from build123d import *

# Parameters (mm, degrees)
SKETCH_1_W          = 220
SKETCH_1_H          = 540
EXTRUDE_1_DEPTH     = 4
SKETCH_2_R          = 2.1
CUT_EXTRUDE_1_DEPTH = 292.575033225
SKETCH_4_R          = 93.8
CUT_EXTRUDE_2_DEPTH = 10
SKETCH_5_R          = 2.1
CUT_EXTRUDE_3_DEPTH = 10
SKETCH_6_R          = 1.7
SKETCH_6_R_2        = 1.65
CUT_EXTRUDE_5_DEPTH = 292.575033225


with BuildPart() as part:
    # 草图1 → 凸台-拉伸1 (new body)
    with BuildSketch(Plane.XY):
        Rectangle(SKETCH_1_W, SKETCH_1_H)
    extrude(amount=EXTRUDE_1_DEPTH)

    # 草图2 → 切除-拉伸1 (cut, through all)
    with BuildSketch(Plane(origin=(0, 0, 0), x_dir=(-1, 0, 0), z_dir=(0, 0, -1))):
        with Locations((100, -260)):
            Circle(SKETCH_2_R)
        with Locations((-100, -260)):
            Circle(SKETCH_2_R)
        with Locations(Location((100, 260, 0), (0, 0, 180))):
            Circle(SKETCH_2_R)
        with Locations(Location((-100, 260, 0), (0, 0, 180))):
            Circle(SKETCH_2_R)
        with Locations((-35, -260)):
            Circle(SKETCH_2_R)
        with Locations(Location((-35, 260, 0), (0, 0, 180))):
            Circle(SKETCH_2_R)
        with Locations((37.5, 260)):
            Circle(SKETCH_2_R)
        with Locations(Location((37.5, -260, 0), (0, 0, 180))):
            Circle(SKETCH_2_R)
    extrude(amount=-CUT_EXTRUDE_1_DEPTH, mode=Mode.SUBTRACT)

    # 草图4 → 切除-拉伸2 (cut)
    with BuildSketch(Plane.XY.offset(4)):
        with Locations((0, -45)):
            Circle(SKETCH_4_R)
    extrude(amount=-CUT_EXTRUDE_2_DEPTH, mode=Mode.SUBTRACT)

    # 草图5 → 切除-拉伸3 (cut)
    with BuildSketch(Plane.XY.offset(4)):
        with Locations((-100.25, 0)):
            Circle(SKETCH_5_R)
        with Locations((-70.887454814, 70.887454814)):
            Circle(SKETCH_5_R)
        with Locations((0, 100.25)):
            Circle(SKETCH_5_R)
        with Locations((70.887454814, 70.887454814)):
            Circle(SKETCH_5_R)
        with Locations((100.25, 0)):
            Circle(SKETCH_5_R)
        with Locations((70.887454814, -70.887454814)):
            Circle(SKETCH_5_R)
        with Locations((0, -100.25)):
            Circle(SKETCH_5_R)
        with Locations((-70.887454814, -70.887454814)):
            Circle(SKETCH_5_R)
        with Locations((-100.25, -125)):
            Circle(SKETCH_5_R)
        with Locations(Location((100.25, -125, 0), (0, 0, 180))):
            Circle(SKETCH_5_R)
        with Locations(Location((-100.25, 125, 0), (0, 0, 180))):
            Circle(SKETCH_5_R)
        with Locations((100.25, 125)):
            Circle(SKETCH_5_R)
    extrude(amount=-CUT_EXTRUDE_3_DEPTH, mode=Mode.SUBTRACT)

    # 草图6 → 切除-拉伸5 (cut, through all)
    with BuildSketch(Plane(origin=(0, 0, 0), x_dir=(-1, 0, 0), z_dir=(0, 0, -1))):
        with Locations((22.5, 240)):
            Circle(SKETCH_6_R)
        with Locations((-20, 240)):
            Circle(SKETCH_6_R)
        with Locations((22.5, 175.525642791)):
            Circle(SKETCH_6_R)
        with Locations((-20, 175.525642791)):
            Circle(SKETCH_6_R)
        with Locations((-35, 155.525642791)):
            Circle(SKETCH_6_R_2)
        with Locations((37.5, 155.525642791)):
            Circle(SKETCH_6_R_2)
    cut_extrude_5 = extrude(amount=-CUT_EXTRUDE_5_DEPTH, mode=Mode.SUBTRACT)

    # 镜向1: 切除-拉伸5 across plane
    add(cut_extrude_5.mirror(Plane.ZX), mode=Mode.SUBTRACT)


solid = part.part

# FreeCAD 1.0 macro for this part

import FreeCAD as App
import Part
import Sketcher
Q = App.Units.Quantity


def add_polygon(sketch, points):
    """Adds a closed chain of lines whose ends are joined by coincident constraints."""
    first, n = sketch.GeometryCount, len(points)
    for a, b in zip(points, points[1:] + points[:1]):
        sketch.addGeometry(Part.LineSegment(App.Vector(*a, 0), App.Vector(*b, 0)), False)
    for i in range(n):
        sketch.addConstraint(Sketcher.Constraint("Coincident", first + i, 2, first + (i + 1) % n, 1))

doc = App.newDocument("Part")
body = doc.addObject("PartDesign::Body", "Body")

sketch1 = body.newObject("Sketcher::SketchObject", "Sketch")
sketch1.AttachmentSupport = (doc.getObject("XY_Plane"), [""])
sketch1.MapMode = "FlatFace"
add_polygon(sketch1, [(-110, 270), (-110, -270), (110, -270), (110, 270)])
sketch1.addConstraint(Sketcher.Constraint("Vertical", 0))
sketch1.addConstraint(Sketcher.Constraint("Horizontal", 1))
sketch1.addConstraint(Sketcher.Constraint("Vertical", 2))
sketch1.addConstraint(Sketcher.Constraint("Horizontal", 3))
sketch1.addConstraint(Sketcher.Constraint("Symmetric", 0, 2, 2, 2, -1, 1))
sketch1.addConstraint(Sketcher.Constraint("DistanceX", 1, 1, 1, 2, Q("220 mm")))
sketch1.addConstraint(Sketcher.Constraint("DistanceY", 0, 2, 0, 1, Q("540 mm")))
pad1 = body.newObject("PartDesign::Pad", "Pad")
pad1.Profile = sketch1
pad1.Length = 4

sketch2 = body.newObject("Sketcher::SketchObject", "Sketch001")
sketch2.AttachmentSupport = (doc.getObject("XY_Plane"), [""])
sketch2.MapMode = "FlatFace"
sketch2.addGeometry(Part.Circle(App.Vector(-100, -260, 0), App.Vector(0, 0, 1), 2.1), False)
sketch2.addGeometry(Part.Circle(App.Vector(100, -260, 0), App.Vector(0, 0, 1), 2.1), False)
sketch2.addGeometry(Part.Circle(App.Vector(-100, 260, 0), App.Vector(0, 0, 1), 2.1), False)
sketch2.addGeometry(Part.Circle(App.Vector(100, 260, 0), App.Vector(0, 0, 1), 2.1), False)
sketch2.addGeometry(Part.Circle(App.Vector(35, -260, 0), App.Vector(0, 0, 1), 2.1), False)
sketch2.addGeometry(Part.Circle(App.Vector(35, 260, 0), App.Vector(0, 0, 1), 2.1), False)
sketch2.addGeometry(Part.Circle(App.Vector(-37.5, 260, 0), App.Vector(0, 0, 1), 2.1), False)
sketch2.addGeometry(Part.Circle(App.Vector(-37.5, -260, 0), App.Vector(0, 0, 1), 2.1), False)
sketch2.addConstraint(Sketcher.Constraint("Equal", 0, 1))
sketch2.addConstraint(Sketcher.Constraint("Equal", 1, 2))
sketch2.addConstraint(Sketcher.Constraint("Equal", 2, 3))
sketch2.addConstraint(Sketcher.Constraint("Equal", 3, 4))
sketch2.addConstraint(Sketcher.Constraint("Equal", 4, 5))
sketch2.addConstraint(Sketcher.Constraint("Equal", 5, 6))
sketch2.addConstraint(Sketcher.Constraint("Equal", 6, 7))
sketch2.addConstraint(Sketcher.Constraint("Symmetric", 1, 3, 2, 3, -1, 1))
sketch2.addConstraint(Sketcher.Constraint("Symmetric", 0, 3, 3, 3, -1, 1))
sketch2.addConstraint(Sketcher.Constraint("Symmetric", 0, 3, 1, 3, -2))
sketch2.addConstraint(Sketcher.Constraint("Symmetric", 4, 3, 5, 3, -1))
sketch2.addConstraint(Sketcher.Constraint("Symmetric", 6, 3, 7, 3, -1))
sketch2.addConstraint(Sketcher.Constraint("Horizontal", 1, 3, 4, 3))
sketch2.addConstraint(Sketcher.Constraint("Horizontal", 5, 3, 6, 3))
sketch2.addConstraint(Sketcher.Constraint("Diameter", 0, Q("4.2 mm")))
sketch2.addConstraint(Sketcher.Constraint("DistanceX", 0, 3, -1, 1, Q("100 mm")))
sketch2.addConstraint(Sketcher.Constraint("DistanceY", 0, 3, -1, 1, Q("260 mm")))
sketch2.addConstraint(Sketcher.Constraint("DistanceX", -1, 1, 4, 3, Q("35 mm")))
sketch2.addConstraint(Sketcher.Constraint("DistanceX", 6, 3, -1, 1, Q("37.5 mm")))
pocket1 = body.newObject("PartDesign::Pocket", "Pocket")
pocket1.Profile = sketch2
pocket1.Type = "ThroughAll"
pocket1.Reversed = True

sketch3 = body.newObject("Sketcher::SketchObject", "Sketch002")
sketch3.AttachmentSupport = (doc.getObject("XY_Plane"), [""])
sketch3.MapMode = "FlatFace"
sketch3.AttachmentOffset = App.Placement(App.Vector(0, 0, 4), App.Rotation())
sketch3.addGeometry(Part.Circle(App.Vector(0, -45, 0), App.Vector(0, 0, 1), 94), False)
sketch3.addConstraint(Sketcher.Constraint("PointOnObject", 0, 3, -2))
sketch3.addConstraint(Sketcher.Constraint("Diameter", 0, Q("187.6 mm")))
sketch3.addConstraint(Sketcher.Constraint("DistanceY", 0, 3, -1, 1, Q("45 mm")))
pocket2 = body.newObject("PartDesign::Pocket", "Pocket001")
pocket2.Profile = sketch3
pocket2.Length = 10

sketch4 = body.newObject("Sketcher::SketchObject", "Sketch003")
sketch4.AttachmentSupport = (doc.getObject("XY_Plane"), [""])
sketch4.MapMode = "FlatFace"
sketch4.AttachmentOffset = App.Placement(App.Vector(0, 0, 4), App.Rotation())
sketch4.addGeometry(Part.Circle(App.Vector(-100.2, 0, 0), App.Vector(0, 0, 1), 2.1), False)
sketch4.addGeometry(Part.Circle(App.Vector(-70.9, 70.9, 0), App.Vector(0, 0, 1), 2.1), False)
sketch4.addGeometry(Part.Circle(App.Vector(0, 100.2, 0), App.Vector(0, 0, 1), 2.1), False)
sketch4.addGeometry(Part.Circle(App.Vector(70.9, 70.9, 0), App.Vector(0, 0, 1), 2.1), False)
sketch4.addGeometry(Part.Circle(App.Vector(100.2, 0, 0), App.Vector(0, 0, 1), 2.1), False)
sketch4.addGeometry(Part.Circle(App.Vector(70.9, -70.9, 0), App.Vector(0, 0, 1), 2.1), False)
sketch4.addGeometry(Part.Circle(App.Vector(0, -100.2, 0), App.Vector(0, 0, 1), 2.1), False)
sketch4.addGeometry(Part.Circle(App.Vector(-70.9, -70.9, 0), App.Vector(0, 0, 1), 2.1), False)
sketch4.addGeometry(Part.Circle(App.Vector(-100.2, -125, 0), App.Vector(0, 0, 1), 2.1), False)
sketch4.addGeometry(Part.Circle(App.Vector(100.2, -125, 0), App.Vector(0, 0, 1), 2.1), False)
sketch4.addGeometry(Part.Circle(App.Vector(-100.2, 125, 0), App.Vector(0, 0, 1), 2.1), False)
sketch4.addGeometry(Part.Circle(App.Vector(100.2, 125, 0), App.Vector(0, 0, 1), 2.1), False)
sketch4.addConstraint(Sketcher.Constraint("Equal", 0, 1))
sketch4.addConstraint(Sketcher.Constraint("Equal", 1, 2))
sketch4.addConstraint(Sketcher.Constraint("Equal", 2, 3))
sketch4.addConstraint(Sketcher.Constraint("Equal", 3, 4))
sketch4.addConstraint(Sketcher.Constraint("Equal", 4, 5))
sketch4.addConstraint(Sketcher.Constraint("Equal", 5, 6))
sketch4.addConstraint(Sketcher.Constraint("Equal", 6, 7))
sketch4.addConstraint(Sketcher.Constraint("Equal", 7, 8))
sketch4.addConstraint(Sketcher.Constraint("Equal", 8, 9))
sketch4.addConstraint(Sketcher.Constraint("Equal", 9, 10))
sketch4.addConstraint(Sketcher.Constraint("Equal", 10, 11))
sketch4.addConstraint(Sketcher.Constraint("Symmetric", 0, 3, 4, 3, -1, 1))
sketch4.addConstraint(Sketcher.Constraint("Symmetric", 1, 3, 5, 3, -1, 1))
sketch4.addConstraint(Sketcher.Constraint("Symmetric", 2, 3, 6, 3, -1, 1))
sketch4.addConstraint(Sketcher.Constraint("Symmetric", 3, 3, 7, 3, -1, 1))
sketch4.addConstraint(Sketcher.Constraint("Symmetric", 9, 3, 10, 3, -1, 1))
sketch4.addConstraint(Sketcher.Constraint("Symmetric", 8, 3, 11, 3, -1, 1))
sketch4.addConstraint(Sketcher.Constraint("Symmetric", 1, 3, 3, 3, -2))
sketch4.addConstraint(Sketcher.Constraint("Symmetric", 8, 3, 9, 3, -2))
sketch4.addConstraint(Sketcher.Constraint("PointOnObject", 0, 3, -1))
sketch4.addConstraint(Sketcher.Constraint("PointOnObject", 2, 3, -2))
sketch4.addConstraint(Sketcher.Constraint("Vertical", 0, 3, 8, 3))
sketch4.addConstraint(Sketcher.Constraint("Diameter", 0, Q("4.2 mm")))
sketch4.addConstraint(Sketcher.Constraint("DistanceY", 8, 3, -1, 1, Q("125 mm")))
sketch4.addConstraint(Sketcher.Constraint("DistanceX", 0, 3, 4, 3, Q("200.5 mm")))
sketch4.addConstraint(Sketcher.Constraint("DistanceY", -1, 1, 2, 3, Q("100.25 mm")))
sketch4.addConstraint(Sketcher.Constraint("DistanceX", 1, 3, 3, 3, Q("141.77491 mm")))
sketch4.addConstraint(Sketcher.Constraint("DistanceY", 5, 3, 3, 3, Q("141.77491 mm")))
pocket3 = body.newObject("PartDesign::Pocket", "Pocket002")
pocket3.Profile = sketch4
pocket3.Length = 10

sketch5 = body.newObject("Sketcher::SketchObject", "Sketch004")
sketch5.AttachmentSupport = (doc.getObject("XY_Plane"), [""])
sketch5.MapMode = "FlatFace"
sketch5.addGeometry(Part.Circle(App.Vector(-22.5, 240, 0), App.Vector(0, 0, 1), 1.7), False)
sketch5.addGeometry(Part.Circle(App.Vector(20, 240, 0), App.Vector(0, 0, 1), 1.7), False)
sketch5.addGeometry(Part.Circle(App.Vector(-22.5, 175.5, 0), App.Vector(0, 0, 1), 1.7), False)
sketch5.addGeometry(Part.Circle(App.Vector(20, 175.5, 0), App.Vector(0, 0, 1), 1.7), False)
sketch5.addGeometry(Part.Circle(App.Vector(35, 155.5, 0), App.Vector(0, 0, 1), 1.6), False)
sketch5.addGeometry(Part.Circle(App.Vector(-37.5, 155.5, 0), App.Vector(0, 0, 1), 1.6), False)
sketch5.addConstraint(Sketcher.Constraint("Equal", 0, 1))
sketch5.addConstraint(Sketcher.Constraint("Equal", 1, 2))
sketch5.addConstraint(Sketcher.Constraint("Equal", 2, 3))
sketch5.addConstraint(Sketcher.Constraint("Equal", 4, 5))
sketch5.addConstraint(Sketcher.Constraint("Horizontal", 0, 3, 1, 3))
sketch5.addConstraint(Sketcher.Constraint("Horizontal", 2, 3, 3, 3))
sketch5.addConstraint(Sketcher.Constraint("Horizontal", 4, 3, 5, 3))
sketch5.addConstraint(Sketcher.Constraint("Vertical", 0, 3, 2, 3))
sketch5.addConstraint(Sketcher.Constraint("Vertical", 1, 3, 3, 3))
sketch5.addConstraint(Sketcher.Constraint("Diameter", 0, Q("3.4 mm")))
sketch5.addConstraint(Sketcher.Constraint("Diameter", 4, Q("3.3 mm")))
sketch5.addConstraint(Sketcher.Constraint("DistanceY", -1, 1, 0, 3, Q("240 mm")))
sketch5.addConstraint(Sketcher.Constraint("DistanceX", -1, 1, 1, 3, Q("20 mm")))
sketch5.addConstraint(Sketcher.Constraint("DistanceX", -1, 1, 4, 3, Q("35 mm")))
sketch5.addConstraint(Sketcher.Constraint("DistanceY", 4, 3, 3, 3, Q("20 mm")))
sketch5.addConstraint(Sketcher.Constraint("DistanceX", 5, 3, 2, 3, Q("15 mm")))
sketch5.addConstraint(Sketcher.Constraint("DistanceX", 0, 3, -1, 1, Q("22.5 mm")))
sketch5.addConstraint(Sketcher.Constraint("DistanceY", -1, 1, 2, 3, Q("175.525643 mm")))
pocket4 = body.newObject("PartDesign::Pocket", "Pocket003")
pocket4.Profile = sketch5
pocket4.Type = "ThroughAll"
pocket4.Reversed = True
doc.recompute()

mirrored = body.newObject("PartDesign::Mirrored", "Mirrored")
mirrored.Originals = [pocket4]
mirrored.MirrorPlane = (doc.getObject("XZ_Plane"), [""])
body.Tip = mirrored

doc.recompute()
